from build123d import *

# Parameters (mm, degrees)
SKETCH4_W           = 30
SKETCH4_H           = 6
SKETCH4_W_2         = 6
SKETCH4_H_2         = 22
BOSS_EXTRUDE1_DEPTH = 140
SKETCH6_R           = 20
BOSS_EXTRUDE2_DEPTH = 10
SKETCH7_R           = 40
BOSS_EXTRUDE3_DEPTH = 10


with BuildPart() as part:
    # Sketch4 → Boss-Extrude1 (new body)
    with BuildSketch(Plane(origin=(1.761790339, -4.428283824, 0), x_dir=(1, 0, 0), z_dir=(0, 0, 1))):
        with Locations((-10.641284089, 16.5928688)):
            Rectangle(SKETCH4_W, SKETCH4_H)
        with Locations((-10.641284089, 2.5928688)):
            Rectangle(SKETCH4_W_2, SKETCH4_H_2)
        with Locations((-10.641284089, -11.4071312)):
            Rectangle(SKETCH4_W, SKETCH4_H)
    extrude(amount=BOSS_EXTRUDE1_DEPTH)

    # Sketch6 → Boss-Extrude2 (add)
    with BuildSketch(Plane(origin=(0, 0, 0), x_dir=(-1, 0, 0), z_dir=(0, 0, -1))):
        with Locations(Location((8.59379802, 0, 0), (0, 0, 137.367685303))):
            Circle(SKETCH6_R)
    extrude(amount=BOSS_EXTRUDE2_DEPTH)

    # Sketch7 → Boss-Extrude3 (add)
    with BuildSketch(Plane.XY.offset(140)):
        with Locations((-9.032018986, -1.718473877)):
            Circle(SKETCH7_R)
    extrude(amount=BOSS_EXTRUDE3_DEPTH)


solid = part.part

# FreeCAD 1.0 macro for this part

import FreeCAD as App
import Part
import Sketcher
Q = App.Units.Quantity

doc = App.newDocument("Part")
body = doc.addObject("PartDesign::Body", "Body")

sketch1 = doc.addObject("Sketcher::SketchObject", "Sketch")
body.addObject(sketch1)
sketch1.AttachmentSupport = (doc.XY_Plane, [""])
sketch1.MapMode = "FlatFace"
sketch1.addGeometry(Part.LineSegment(App.Vector(-23.879494, 15.164585, 0), App.Vector(-23.879494, 9.164585, 0)), False)
sketch1.addGeometry(Part.LineSegment(App.Vector(-23.879494, 9.164585, 0), App.Vector(-11.879494, 9.164585, 0)), False)
sketch1.addGeometry(Part.LineSegment(App.Vector(-11.879494, 9.164585, 0), App.Vector(-11.879494, -12.835415, 0)), False)
sketch1.addGeometry(Part.LineSegment(App.Vector(-11.879494, -12.835415, 0), App.Vector(-23.879494, -12.835415, 0)), False)
sketch1.addGeometry(Part.LineSegment(App.Vector(-23.879494, -12.835415, 0), App.Vector(-23.879494, -18.835415, 0)), False)
sketch1.addGeometry(Part.LineSegment(App.Vector(-23.879494, -18.835415, 0), App.Vector(6.120506, -18.835415, 0)), False)
sketch1.addGeometry(Part.LineSegment(App.Vector(6.120506, -18.835415, 0), App.Vector(6.120506, -12.835415, 0)), False)
sketch1.addGeometry(Part.LineSegment(App.Vector(6.120506, -12.835415, 0), App.Vector(-5.879494, -12.835415, 0)), False)
sketch1.addGeometry(Part.LineSegment(App.Vector(-5.879494, -12.835415, 0), App.Vector(-5.879494, 9.164585, 0)), False)
sketch1.addGeometry(Part.LineSegment(App.Vector(-5.879494, 9.164585, 0), App.Vector(6.120506, 9.164585, 0)), False)
sketch1.addGeometry(Part.LineSegment(App.Vector(6.120506, 9.164585, 0), App.Vector(6.120506, 15.164585, 0)), False)
sketch1.addGeometry(Part.LineSegment(App.Vector(6.120506, 15.164585, 0), App.Vector(-23.879494, 15.164585, 0)), False)
sketch1.addConstraint(Sketcher.Constraint("Coincident", 0, 2, 1, 1))
sketch1.addConstraint(Sketcher.Constraint("Coincident", 1, 2, 2, 1))
sketch1.addConstraint(Sketcher.Constraint("Coincident", 2, 2, 3, 1))
sketch1.addConstraint(Sketcher.Constraint("Coincident", 3, 2, 4, 1))
sketch1.addConstraint(Sketcher.Constraint("Coincident", 4, 2, 5, 1))
sketch1.addConstraint(Sketcher.Constraint("Coincident", 5, 2, 6, 1))
sketch1.addConstraint(Sketcher.Constraint("Coincident", 6, 2, 7, 1))
sketch1.addConstraint(Sketcher.Constraint("Coincident", 7, 2, 8, 1))
sketch1.addConstraint(Sketcher.Constraint("Coincident", 8, 2, 9, 1))
sketch1.addConstraint(Sketcher.Constraint("Coincident", 9, 2, 10, 1))
sketch1.addConstraint(Sketcher.Constraint("Coincident", 10, 2, 11, 1))
sketch1.addConstraint(Sketcher.Constraint("Coincident", 11, 2, 0, 1))
sketch1.addConstraint(Sketcher.Constraint("Vertical", 0))
sketch1.addConstraint(Sketcher.Constraint("Horizontal", 1))
sketch1.addConstraint(Sketcher.Constraint("Vertical", 2))
sketch1.addConstraint(Sketcher.Constraint("Horizontal", 3))
sketch1.addConstraint(Sketcher.Constraint("Vertical", 4))
sketch1.addConstraint(Sketcher.Constraint("Horizontal", 5))
sketch1.addConstraint(Sketcher.Constraint("Vertical", 6))
sketch1.addConstraint(Sketcher.Constraint("Horizontal", 7))
sketch1.addConstraint(Sketcher.Constraint("Vertical", 8))
sketch1.addConstraint(Sketcher.Constraint("Horizontal", 9))
sketch1.addConstraint(Sketcher.Constraint("Vertical", 10))
sketch1.addConstraint(Sketcher.Constraint("Horizontal", 11))
sketch1.addConstraint(Sketcher.Constraint("Horizontal", 3, 2, 6, 2))
sketch1.addConstraint(Sketcher.Constraint("Horizontal", 1, 2, 8, 2))
sketch1.addConstraint(Sketcher.Constraint("Vertical", 0, 2, 3, 2))
sketch1.addConstraint(Sketcher.Constraint("Vertical", 6, 2, 9, 2))
sketch1.addConstraint(Sketcher.Constraint("Equal", 3, 7))
sketch1.addConstraint(Sketcher.Constraint("Equal", 0, 4))
sketch1.addConstraint(Sketcher.Constraint("DistanceX", 1, 1, 1, 2, Q("12 mm")))
sketch1.addConstraint(Sketcher.Constraint("DistanceX", 5, 1, 5, 2, Q("30 mm")))
sketch1.addConstraint(Sketcher.Constraint("DistanceY", 0, 2, 0, 1, Q("6 mm")))
sketch1.addConstraint(Sketcher.Constraint("DistanceY", 2, 2, 2, 1, Q("22 mm")))
sketch1.addConstraint(Sketcher.Constraint("DistanceX", 0, 2, -1, 1, Q("23.879494 mm")))
sketch1.addConstraint(Sketcher.Constraint("DistanceY", -1, 1, 0, 2, Q("9.164585 mm")))
pad1 = doc.addObject("PartDesign::Pad", "Pad")
body.addObject(pad1)
pad1.Profile = sketch1
pad1.Length = 140

sketch2 = doc.addObject("Sketcher::SketchObject", "Sketch001")
body.addObject(sketch2)
sketch2.AttachmentSupport = (doc.XY_Plane, [""])
sketch2.MapMode = "FlatFace"
sketch2.addGeometry(Part.Circle(App.Vector(-8.593798, 0, 0), App.Vector(0, 0, 1), 20), False)
sketch2.addConstraint(Sketcher.Constraint("PointOnObject", 0, 3, -1))
sketch2.addConstraint(Sketcher.Constraint("Diameter", 0, Q("40 mm")))
sketch2.addConstraint(Sketcher.Constraint("DistanceX", 0, 3, -1, 1, Q("8.593798 mm")))
pad2 = doc.addObject("PartDesign::Pad", "Pad001")
body.addObject(pad2)
pad2.Profile = sketch2
pad2.Length = 10
pad2.Reversed = True

sketch3 = doc.addObject("Sketcher::SketchObject", "Sketch002")
body.addObject(sketch3)
sketch3.AttachmentSupport = (doc.XY_Plane, [""])
sketch3.MapMode = "FlatFace"
sketch3.AttachmentOffset = App.Placement(App.Vector(0, 0, 140), App.Rotation())
sketch3.addGeometry(Part.Circle(App.Vector(-9.032019, -1.718474, 0), App.Vector(0, 0, 1), 40), False)
sketch3.addConstraint(Sketcher.Constraint("Diameter", 0, Q("80 mm")))
sketch3.addConstraint(Sketcher.Constraint("DistanceX", 0, 3, -1, 1, Q("9.032019 mm")))
sketch3.addConstraint(Sketcher.Constraint("DistanceY", 0, 3, -1, 1, Q("1.718474 mm")))
pad3 = doc.addObject("PartDesign::Pad", "Pad002")
body.addObject(pad3)
pad3.Profile = sketch3
pad3.Length = 10

doc.recompute()
